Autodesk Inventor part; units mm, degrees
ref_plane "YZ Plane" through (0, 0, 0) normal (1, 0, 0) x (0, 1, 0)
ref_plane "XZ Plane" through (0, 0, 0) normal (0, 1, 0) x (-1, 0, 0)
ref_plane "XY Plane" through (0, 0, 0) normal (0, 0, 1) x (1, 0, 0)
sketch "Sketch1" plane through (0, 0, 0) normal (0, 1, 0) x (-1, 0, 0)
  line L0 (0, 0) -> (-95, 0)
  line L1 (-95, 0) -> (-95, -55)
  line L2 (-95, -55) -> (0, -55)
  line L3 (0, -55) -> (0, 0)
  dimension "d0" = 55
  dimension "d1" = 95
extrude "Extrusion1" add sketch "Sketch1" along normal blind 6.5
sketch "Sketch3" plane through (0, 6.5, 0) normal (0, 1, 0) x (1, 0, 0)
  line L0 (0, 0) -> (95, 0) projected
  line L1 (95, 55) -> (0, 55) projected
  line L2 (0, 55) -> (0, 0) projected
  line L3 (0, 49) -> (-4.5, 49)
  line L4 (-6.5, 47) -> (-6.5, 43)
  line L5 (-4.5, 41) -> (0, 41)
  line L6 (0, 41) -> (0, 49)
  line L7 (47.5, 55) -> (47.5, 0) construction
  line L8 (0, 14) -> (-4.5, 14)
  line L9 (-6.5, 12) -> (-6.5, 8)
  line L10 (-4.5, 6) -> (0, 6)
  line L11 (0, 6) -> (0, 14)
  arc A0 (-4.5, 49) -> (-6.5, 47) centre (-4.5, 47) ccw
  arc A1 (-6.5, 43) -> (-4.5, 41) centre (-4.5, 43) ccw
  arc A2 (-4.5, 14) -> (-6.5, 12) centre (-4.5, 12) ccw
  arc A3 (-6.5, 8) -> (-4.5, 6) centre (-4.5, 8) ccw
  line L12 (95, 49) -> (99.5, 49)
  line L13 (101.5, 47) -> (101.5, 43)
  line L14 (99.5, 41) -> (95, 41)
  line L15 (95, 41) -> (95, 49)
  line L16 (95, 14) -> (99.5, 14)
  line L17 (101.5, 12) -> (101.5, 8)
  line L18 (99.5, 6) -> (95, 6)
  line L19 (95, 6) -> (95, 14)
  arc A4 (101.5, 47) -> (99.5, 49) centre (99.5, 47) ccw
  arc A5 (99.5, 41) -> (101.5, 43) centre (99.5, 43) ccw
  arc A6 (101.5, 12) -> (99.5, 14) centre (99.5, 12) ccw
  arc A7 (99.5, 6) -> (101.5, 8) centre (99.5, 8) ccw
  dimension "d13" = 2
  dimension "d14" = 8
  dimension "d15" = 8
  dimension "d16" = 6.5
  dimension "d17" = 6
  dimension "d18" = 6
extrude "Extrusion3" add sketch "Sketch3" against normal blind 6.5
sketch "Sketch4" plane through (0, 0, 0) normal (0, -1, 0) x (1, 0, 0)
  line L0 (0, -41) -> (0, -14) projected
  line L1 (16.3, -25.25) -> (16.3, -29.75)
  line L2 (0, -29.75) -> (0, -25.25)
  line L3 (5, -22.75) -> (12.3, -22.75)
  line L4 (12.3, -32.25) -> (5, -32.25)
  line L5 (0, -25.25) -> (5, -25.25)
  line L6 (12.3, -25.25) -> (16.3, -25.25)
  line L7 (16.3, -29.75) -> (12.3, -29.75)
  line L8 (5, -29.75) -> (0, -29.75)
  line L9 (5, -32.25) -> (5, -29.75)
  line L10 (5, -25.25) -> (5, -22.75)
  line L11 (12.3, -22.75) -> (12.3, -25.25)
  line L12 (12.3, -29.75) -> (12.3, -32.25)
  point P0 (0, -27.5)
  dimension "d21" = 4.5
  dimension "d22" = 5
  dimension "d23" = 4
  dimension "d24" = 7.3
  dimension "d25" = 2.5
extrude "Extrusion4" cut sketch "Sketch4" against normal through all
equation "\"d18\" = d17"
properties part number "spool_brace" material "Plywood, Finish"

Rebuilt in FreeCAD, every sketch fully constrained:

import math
import FreeCAD as App
import Part
import Sketcher
from FreeCAD import Vector


def add_polygon(sketch, points):
    """Adds a closed chain of lines whose ends are joined by coincident constraints."""
    first, n = sketch.GeometryCount, len(points)
    for a, b in zip(points, points[1:] + points[:1]):
        sketch.addGeometry(Part.LineSegment(App.Vector(*a, 0), App.Vector(*b, 0)), False)
    for i in range(n):
        sketch.addConstraint(Sketcher.Constraint("Coincident", first + i, 2, first + (i + 1) % n, 1))

doc = App.newDocument("Part")
body = doc.addObject("PartDesign::Body", "Body")

# Sketch on XZ plane
sketch1 = body.newObject("Sketcher::SketchObject", "Sketch")
sketch1.AttachmentSupport = (doc.getObject("XZ_Plane"), [""])
sketch1.MapMode = "FlatFace"
add_polygon(sketch1, [(0, -55), (0, 0), (95, 0), (95, -55)])  # lines 0-3
sketch1.addConstraint(Sketcher.Constraint("Vertical", 0))
sketch1.addConstraint(Sketcher.Constraint("Horizontal", 1))
sketch1.addConstraint(Sketcher.Constraint("Vertical", 2))
sketch1.addConstraint(Sketcher.Constraint("Horizontal", 3))
sketch1.addConstraint(Sketcher.Constraint("Coincident", 0, 2, -1, 1))
sketch1.addConstraint(Sketcher.Constraint("DistanceX", 1, 1, 1, 2, 95.0))
sketch1.addConstraint(Sketcher.Constraint("DistanceY", 0, 1, 0, 2, 55.0))
pad1 = body.newObject("PartDesign::Pad", "Pad")
pad1.Profile = sketch1
pad1.Length = 6.5
pad1.Reversed = True

# Sketch on XZ plane
sketch2 = body.newObject("Sketcher::SketchObject", "Sketch001")
sketch2.AttachmentSupport = (doc.getObject("XZ_Plane"), [""])
sketch2.MapMode = "FlatFace"
sketch2.AttachmentOffset = App.Placement(Vector(0, 0, -6.5), App.Rotation())
sketch2.addGeometry(Part.LineSegment(Vector(0, -6, 0), Vector(0, -14, 0)), False)
sketch2.addGeometry(Part.LineSegment(Vector(0, -14, 0), Vector(-4.5, -14, 0)), False)
sketch2.addGeometry(Part.ArcOfCircle(Part.Circle(Vector(-4.5, -12, 0), Vector(0, 0, 1), 2), math.radians(180), math.radians(270)), False)
sketch2.addGeometry(Part.LineSegment(Vector(-6.5, -12, 0), Vector(-6.5, -8, 0)), False)
sketch2.addGeometry(Part.ArcOfCircle(Part.Circle(Vector(-4.5, -8, 0), Vector(0, 0, 1), 2), math.radians(90), math.radians(180)), False)
sketch2.addGeometry(Part.LineSegment(Vector(-4.5, -6, 0), Vector(0, -6, 0)), False)
sketch2.addGeometry(Part.LineSegment(Vector(0, -41, 0), Vector(0, -49, 0)), False)
sketch2.addGeometry(Part.LineSegment(Vector(0, -49, 0), Vector(-4.5, -49, 0)), False)
sketch2.addGeometry(Part.ArcOfCircle(Part.Circle(Vector(-4.5, -47, 0), Vector(0, 0, 1), 2), math.radians(180), math.radians(270)), False)
sketch2.addGeometry(Part.LineSegment(Vector(-6.5, -47, 0), Vector(-6.5, -43, 0)), False)
sketch2.addGeometry(Part.ArcOfCircle(Part.Circle(Vector(-4.5, -43, 0), Vector(0, 0, 1), 2), math.radians(90), math.radians(180)), False)
sketch2.addGeometry(Part.LineSegment(Vector(-4.5, -41, 0), Vector(0, -41, 0)), False)
sketch2.addGeometry(Part.LineSegment(Vector(99.5, -49, 0), Vector(95, -49, 0)), False)
sketch2.addGeometry(Part.LineSegment(Vector(95, -49, 0), Vector(95, -41, 0)), False)
sketch2.addGeometry(Part.LineSegment(Vector(95, -41, 0), Vector(99.5, -41, 0)), False)
sketch2.addGeometry(Part.ArcOfCircle(Part.Circle(Vector(99.5, -43, 0), Vector(0, 0, 1), 2), math.radians(0), math.radians(90)), False)
sketch2.addGeometry(Part.LineSegment(Vector(101.5, -43, 0), Vector(101.5, -47, 0)), False)
sketch2.addGeometry(Part.ArcOfCircle(Part.Circle(Vector(99.5, -47, 0), Vector(0, 0, 1), 2), math.radians(-90), math.radians(0)), False)
sketch2.addGeometry(Part.LineSegment(Vector(99.5, -14, 0), Vector(95, -14, 0)), False)
sketch2.addGeometry(Part.LineSegment(Vector(95, -14, 0), Vector(95, -6, 0)), False)
sketch2.addGeometry(Part.LineSegment(Vector(95, -6, 0), Vector(99.5, -6, 0)), False)
sketch2.addGeometry(Part.ArcOfCircle(Part.Circle(Vector(99.5, -8, 0), Vector(0, 0, 1), 2), math.radians(0), math.radians(90)), False)
sketch2.addGeometry(Part.LineSegment(Vector(101.5, -8, 0), Vector(101.5, -12, 0)), False)
sketch2.addGeometry(Part.ArcOfCircle(Part.Circle(Vector(99.5, -12, 0), Vector(0, 0, 1), 2), math.radians(-90), math.radians(0)), False)
sketch2.addConstraint(Sketcher.Constraint("Coincident", 0, 2, 1, 1))
sketch2.addConstraint(Sketcher.Constraint("Tangent", 1, 2, 2, 2))
sketch2.addConstraint(Sketcher.Constraint("Tangent", 2, 1, 3, 1))
sketch2.addConstraint(Sketcher.Constraint("Tangent", 3, 2, 4, 2))
sketch2.addConstraint(Sketcher.Constraint("Tangent", 4, 1, 5, 1))
sketch2.addConstraint(Sketcher.Constraint("Coincident", 5, 2, 0, 1))
sketch2.addConstraint(Sketcher.Constraint("Coincident", 6, 2, 7, 1))
sketch2.addConstraint(Sketcher.Constraint("Tangent", 7, 2, 8, 2))
sketch2.addConstraint(Sketcher.Constraint("Tangent", 8, 1, 9, 1))
sketch2.addConstraint(Sketcher.Constraint("Tangent", 9, 2, 10, 2))
sketch2.addConstraint(Sketcher.Constraint("Tangent", 10, 1, 11, 1))
sketch2.addConstraint(Sketcher.Constraint("Coincident", 11, 2, 6, 1))
sketch2.addConstraint(Sketcher.Constraint("Coincident", 12, 2, 13, 1))
sketch2.addConstraint(Sketcher.Constraint("Coincident", 13, 2, 14, 1))
sketch2.addConstraint(Sketcher.Constraint("Tangent", 14, 2, 15, 2))
sketch2.addConstraint(Sketcher.Constraint("Tangent", 15, 1, 16, 1))
sketch2.addConstraint(Sketcher.Constraint("Tangent", 16, 2, 17, 2))
sketch2.addConstraint(Sketcher.Constraint("Tangent", 17, 1, 12, 1))
sketch2.addConstraint(Sketcher.Constraint("Coincident", 18, 2, 19, 1))
sketch2.addConstraint(Sketcher.Constraint("Coincident", 19, 2, 20, 1))
sketch2.addConstraint(Sketcher.Constraint("Tangent", 20, 2, 21, 2))
sketch2.addConstraint(Sketcher.Constraint("Tangent", 21, 1, 22, 1))
sketch2.addConstraint(Sketcher.Constraint("Tangent", 22, 2, 23, 2))
sketch2.addConstraint(Sketcher.Constraint("Tangent", 23, 1, 18, 1))
sketch2.addConstraint(Sketcher.Constraint("Vertical", 0))
sketch2.addConstraint(Sketcher.Constraint("Horizontal", 1))
sketch2.addConstraint(Sketcher.Constraint("Vertical", 3))
sketch2.addConstraint(Sketcher.Constraint("Horizontal", 5))
sketch2.addConstraint(Sketcher.Constraint("Vertical", 6))
sketch2.addConstraint(Sketcher.Constraint("Horizontal", 7))
sketch2.addConstraint(Sketcher.Constraint("Vertical", 9))
sketch2.addConstraint(Sketcher.Constraint("Horizontal", 11))
sketch2.addConstraint(Sketcher.Constraint("Horizontal", 12))
sketch2.addConstraint(Sketcher.Constraint("Vertical", 13))
sketch2.addConstraint(Sketcher.Constraint("Horizontal", 14))
sketch2.addConstraint(Sketcher.Constraint("Vertical", 16))
sketch2.addConstraint(Sketcher.Constraint("Horizontal", 18))
sketch2.addConstraint(Sketcher.Constraint("Vertical", 19))
sketch2.addConstraint(Sketcher.Constraint("Horizontal", 20))
sketch2.addConstraint(Sketcher.Constraint("Vertical", 22))
sketch2.addConstraint(Sketcher.Constraint("Equal", 2, 4))
sketch2.addConstraint(Sketcher.Constraint("Equal", 4, 8))
sketch2.addConstraint(Sketcher.Constraint("Equal", 8, 10))
sketch2.addConstraint(Sketcher.Constraint("Equal", 10, 15))
sketch2.addConstraint(Sketcher.Constraint("Equal", 15, 17))
sketch2.addConstraint(Sketcher.Constraint("Equal", 17, 21))
sketch2.addConstraint(Sketcher.Constraint("Equal", 21, 23))
sketch2.addConstraint(Sketcher.Constraint("PointOnObject", 0, 2, -2))
sketch2.addConstraint(Sketcher.Constraint("PointOnObject", 6, 2, -2))
sketch2.addConstraint(Sketcher.Constraint("Horizontal", 10, 3, 15, 3))
sketch2.addConstraint(Sketcher.Constraint("Horizontal", 8, 3, 17, 3))
sketch2.addConstraint(Sketcher.Constraint("Horizontal", 4, 3, 21, 3))
sketch2.addConstraint(Sketcher.Constraint("Horizontal", 2, 3, 23, 3))
sketch2.addConstraint(Sketcher.Constraint("Vertical", 4, 3, 8, 3))
sketch2.addConstraint(Sketcher.Constraint("Vertical", 17, 3, 21, 3))
sketch2.addConstraint(Sketcher.Constraint("Vertical", 13, 2, 18, 2))
sketch2.addConstraint(Sketcher.Constraint("Equal", 11, 12))
sketch2.addConstraint(Sketcher.Constraint("Equal", 0, 6))
sketch2.addConstraint(Sketcher.Constraint("Radius", 2, 2.0))
sketch2.addConstraint(Sketcher.Constraint("DistanceY", 0, 2, 0, 1, 8.0))
sketch2.addConstraint(Sketcher.Constraint("DistanceY", 4, 3, -1, 1, 8.0))
sketch2.addConstraint(Sketcher.Constraint("DistanceX", 2, 1, -1, 1, 6.5))
sketch2.addConstraint(Sketcher.Constraint("DistanceY", 8, 3, -1, 1, 47.0))
sketch2.addConstraint(Sketcher.Constraint("DistanceX", -1, 1, 12, 2, 95.0))
pad2 = body.newObject("PartDesign::Pad", "Pad001")
pad2.Profile = sketch2
pad2.Length = 6.5

# Sketch on XZ plane
sketch3 = body.newObject("Sketcher::SketchObject", "Sketch002")
sketch3.AttachmentSupport = (doc.getObject("XZ_Plane"), [""])
sketch3.MapMode = "FlatFace"
add_polygon(sketch3, [(0, -25.2), (0, -29.8), (5, -29.8), (5, -32.2), (12.3, -32.2), (12.3, -29.8), (16.3, -29.8), (16.3, -25.2), (12.3, -25.2), (12.3, -22.8), (5, -22.8), (5, -25.2)])  # lines 0-11
sketch3.addConstraint(Sketcher.Constraint("Vertical", 0))
sketch3.addConstraint(Sketcher.Constraint("Horizontal", 1))
sketch3.addConstraint(Sketcher.Constraint("Vertical", 2))
sketch3.addConstraint(Sketcher.Constraint("Horizontal", 3))
sketch3.addConstraint(Sketcher.Constraint("Vertical", 4))
sketch3.addConstraint(Sketcher.Constraint("Horizontal", 5))
sketch3.addConstraint(Sketcher.Constraint("Vertical", 6))
sketch3.addConstraint(Sketcher.Constraint("Horizontal", 7))
sketch3.addConstraint(Sketcher.Constraint("Vertical", 8))
sketch3.addConstraint(Sketcher.Constraint("Horizontal", 9))
sketch3.addConstraint(Sketcher.Constraint("Vertical", 10))
sketch3.addConstraint(Sketcher.Constraint("Horizontal", 11))
sketch3.addConstraint(Sketcher.Constraint("PointOnObject", 0, 2, -2))
sketch3.addConstraint(Sketcher.Constraint("Horizontal", 1, 2, 4, 2))
sketch3.addConstraint(Sketcher.Constraint("Horizontal", 7, 2, 10, 2))
sketch3.addConstraint(Sketcher.Constraint("Vertical", 4, 2, 7, 2))
sketch3.addConstraint(Sketcher.Constraint("Vertical", 2, 2, 9, 2))
sketch3.addConstraint(Sketcher.Constraint("Equal", 4, 8))
sketch3.addConstraint(Sketcher.Constraint("DistanceX", 1, 1, 1, 2, 5.0))
sketch3.addConstraint(Sketcher.Constraint("DistanceX", 5, 1, 5, 2, 4.0))
sketch3.addConstraint(Sketcher.Constraint("DistanceX", 3, 1, 3, 2, 7.3))
sketch3.addConstraint(Sketcher.Constraint("DistanceY", 0, 2, 0, 1, 4.5))
sketch3.addConstraint(Sketcher.Constraint("DistanceY", 2, 2, 2, 1, 2.5))
sketch3.addConstraint(Sketcher.Constraint("DistanceY", 0, 2, -1, 1, 29.75))
pocket1 = body.newObject("PartDesign::Pocket", "Pocket")
pocket1.Profile = sketch3
pocket1.Type = "ThroughAll"

doc.recompute()
